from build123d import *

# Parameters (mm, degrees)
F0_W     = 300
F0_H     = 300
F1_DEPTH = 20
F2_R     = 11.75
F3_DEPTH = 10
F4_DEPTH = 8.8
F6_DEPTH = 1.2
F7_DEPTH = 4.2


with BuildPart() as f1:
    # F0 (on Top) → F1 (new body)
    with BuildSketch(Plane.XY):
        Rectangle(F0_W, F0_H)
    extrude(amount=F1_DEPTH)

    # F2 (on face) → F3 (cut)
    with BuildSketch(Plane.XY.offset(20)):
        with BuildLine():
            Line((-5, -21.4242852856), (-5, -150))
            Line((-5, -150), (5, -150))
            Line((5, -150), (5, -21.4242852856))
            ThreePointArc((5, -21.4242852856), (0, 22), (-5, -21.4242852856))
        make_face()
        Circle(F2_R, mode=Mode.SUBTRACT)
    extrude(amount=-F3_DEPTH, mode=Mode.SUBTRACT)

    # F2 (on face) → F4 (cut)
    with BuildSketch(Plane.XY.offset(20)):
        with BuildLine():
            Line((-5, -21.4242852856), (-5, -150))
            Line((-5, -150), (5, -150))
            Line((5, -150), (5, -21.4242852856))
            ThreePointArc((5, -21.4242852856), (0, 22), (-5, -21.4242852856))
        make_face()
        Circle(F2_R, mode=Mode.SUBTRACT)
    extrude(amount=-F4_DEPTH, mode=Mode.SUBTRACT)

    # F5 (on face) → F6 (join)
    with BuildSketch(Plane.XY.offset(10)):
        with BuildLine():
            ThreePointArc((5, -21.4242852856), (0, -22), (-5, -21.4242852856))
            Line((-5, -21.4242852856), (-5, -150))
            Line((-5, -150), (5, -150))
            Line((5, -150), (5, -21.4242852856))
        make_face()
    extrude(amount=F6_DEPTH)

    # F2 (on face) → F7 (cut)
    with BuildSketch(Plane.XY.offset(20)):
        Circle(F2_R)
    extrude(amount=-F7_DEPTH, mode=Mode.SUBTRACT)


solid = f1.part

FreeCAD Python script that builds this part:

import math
import FreeCAD as App
import Part
import Sketcher
Q = App.Units.Quantity

doc = App.newDocument("Part")
body = doc.addObject("PartDesign::Body", "Body")

# Sketch on XY plane
sketch1 = body.newObject("Sketcher::SketchObject", "Sketch")
sketch1.AttachmentSupport = (doc.getObject("XY_Plane"), [""])
sketch1.MapMode = "FlatFace"
sketch1.addGeometry([
    Part.LineSegment(App.Vector(-150, 150, 0), App.Vector(-150, -150, 0)),
    Part.LineSegment(App.Vector(-150, -150, 0), App.Vector(150, -150, 0)),
    Part.LineSegment(App.Vector(150, -150, 0), App.Vector(150, 150, 0)),
    Part.LineSegment(App.Vector(150, 150, 0), App.Vector(-150, 150, 0)),
], False)
sketch1.addConstraint([
    Sketcher.Constraint("Coincident", 0, 2, 1, 1),
    Sketcher.Constraint("Coincident", 1, 2, 2, 1),
    Sketcher.Constraint("Coincident", 2, 2, 3, 1),
    Sketcher.Constraint("Coincident", 3, 2, 0, 1),
    Sketcher.Constraint("Vertical", 0),
    Sketcher.Constraint("Horizontal", 1),
    Sketcher.Constraint("Vertical", 2),
    Sketcher.Constraint("Horizontal", 3),
    Sketcher.Constraint("Symmetric", 0, 2, 2, 2, -1, 1),
    Sketcher.Constraint("Equal", 3, 0),
    Sketcher.Constraint("DistanceX", 1, 1, 1, 2, Q("300 mm")),
])
pad1 = body.newObject("PartDesign::Pad", "Pad")
pad1.Profile = sketch1
pad1.Length = 20

# Sketch on XY plane
sketch2 = body.newObject("Sketcher::SketchObject", "Sketch001")
sketch2.AttachmentSupport = (doc.getObject("XY_Plane"), [""])
sketch2.MapMode = "FlatFace"
sketch2.AttachmentOffset = App.Placement(App.Vector(0, 0, 20), App.Rotation())
sketch2.addGeometry([
    Part.LineSegment(App.Vector(-5, -21.424285, 0), App.Vector(-5, -150, 0)),  # 0
    Part.LineSegment(App.Vector(-5, -150, 0), App.Vector(5, -150, 0)),  # 1
    Part.LineSegment(App.Vector(5, -150, 0), App.Vector(5, -21.424285, 0)),  # 2
    Part.ArcOfCircle(Part.Circle(App.Vector(0, 0, 0), App.Vector(0, 0, 1), 22), math.radians(-76.863441), math.radians(256.863441)),  # 3
    Part.Circle(App.Vector(0, 0, 0), App.Vector(0, 0, 1), 11.75),  # 4
], False)
sketch2.addConstraint([
    Sketcher.Constraint("Coincident", 0, 2, 1, 1),
    Sketcher.Constraint("Coincident", 1, 2, 2, 1),
    Sketcher.Constraint("Coincident", 2, 2, 3, 1),
    Sketcher.Constraint("Coincident", 3, 2, 0, 1),
    Sketcher.Constraint("Vertical", 0),
    Sketcher.Constraint("Horizontal", 1),
    Sketcher.Constraint("Vertical", 2),
    Sketcher.Constraint("Coincident", 3, 3, -1, 1),
    Sketcher.Constraint("Coincident", 4, 3, -1, 1),
    Sketcher.Constraint("Horizontal", 2, 2, 3, 2),
    Sketcher.Constraint("Radius", 3, Q("22 mm")),
    Sketcher.Constraint("Diameter", 4, Q("23.5 mm")),
    Sketcher.Constraint("DistanceX", 1, 1, 1, 2, Q("10 mm")),
    Sketcher.Constraint("DistanceY", 0, 2, -1, 1, Q("150 mm")),
])
pocket1 = body.newObject("PartDesign::Pocket", "Pocket")
pocket1.Profile = sketch2
pocket1.Length = 10

# Sketch on XY plane
sketch3 = body.newObject("Sketcher::SketchObject", "Sketch002")
sketch3.AttachmentSupport = (doc.getObject("XY_Plane"), [""])
sketch3.MapMode = "FlatFace"
sketch3.AttachmentOffset = App.Placement(App.Vector(0, 0, 20), App.Rotation())
sketch3.addGeometry([
    Part.LineSegment(App.Vector(-5, -21.424285, 0), App.Vector(-5, -150, 0)),  # 0
    Part.LineSegment(App.Vector(-5, -150, 0), App.Vector(5, -150, 0)),  # 1
    Part.LineSegment(App.Vector(5, -150, 0), App.Vector(5, -21.424285, 0)),  # 2
    Part.ArcOfCircle(Part.Circle(App.Vector(0, 0, 0), App.Vector(0, 0, 1), 22), math.radians(-76.863441), math.radians(256.863441)),  # 3
    Part.Circle(App.Vector(0, 0, 0), App.Vector(0, 0, 1), 11.75),  # 4
], False)
sketch3.addConstraint([
    Sketcher.Constraint("Coincident", 0, 2, 1, 1),
    Sketcher.Constraint("Coincident", 1, 2, 2, 1),
    Sketcher.Constraint("Coincident", 2, 2, 3, 1),
    Sketcher.Constraint("Coincident", 3, 2, 0, 1),
    Sketcher.Constraint("Vertical", 0),
    Sketcher.Constraint("Horizontal", 1),
    Sketcher.Constraint("Vertical", 2),
    Sketcher.Constraint("Coincident", 3, 3, -1, 1),
    Sketcher.Constraint("Coincident", 4, 3, -1, 1),
    Sketcher.Constraint("Horizontal", 2, 2, 3, 2),
    Sketcher.Constraint("Radius", 3, Q("22 mm")),
    Sketcher.Constraint("Diameter", 4, Q("23.5 mm")),
    Sketcher.Constraint("DistanceX", 1, 1, 1, 2, Q("10 mm")),
    Sketcher.Constraint("DistanceY", 0, 2, -1, 1, Q("150 mm")),
])
pocket2 = body.newObject("PartDesign::Pocket", "Pocket001")
pocket2.Profile = sketch3
pocket2.Length = 8.8

# Sketch on XY plane
sketch4 = body.newObject("Sketcher::SketchObject", "Sketch003")
sketch4.AttachmentSupport = (doc.getObject("XY_Plane"), [""])
sketch4.MapMode = "FlatFace"
sketch4.AttachmentOffset = App.Placement(App.Vector(0, 0, 10), App.Rotation())
sketch4.addGeometry([
    Part.ArcOfCircle(Part.Circle(App.Vector(0, 0, 0), App.Vector(0, 0, 1), 22), math.radians(-103.136559), math.radians(-76.863441)),
    Part.LineSegment(App.Vector(-5, -21.424285, 0), App.Vector(-5, -150, 0)),
    Part.LineSegment(App.Vector(-5, -150, 0), App.Vector(5, -150, 0)),
    Part.LineSegment(App.Vector(5, -150, 0), App.Vector(5, -21.424285, 0)),
], False)
sketch4.addConstraint([
    Sketcher.Constraint("Coincident", 0, 1, 1, 1),
    Sketcher.Constraint("Coincident", 1, 2, 2, 1),
    Sketcher.Constraint("Coincident", 2, 2, 3, 1),
    Sketcher.Constraint("Coincident", 3, 2, 0, 2),
    Sketcher.Constraint("Vertical", 1),
    Sketcher.Constraint("Horizontal", 2),
    Sketcher.Constraint("Vertical", 3),
    Sketcher.Constraint("Coincident", 0, 3, -1, 1),
    Sketcher.Constraint("Horizontal", 0, 1, 3, 2),
    Sketcher.Constraint("Radius", 0, Q("22 mm")),
    Sketcher.Constraint("DistanceX", 2, 1, 2, 2, Q("10 mm")),
    Sketcher.Constraint("DistanceY", 1, 2, -1, 1, Q("150 mm")),
])
pad2 = body.newObject("PartDesign::Pad", "Pad001")
pad2.Profile = sketch4
pad2.Length = 1.2

# Sketch on XY plane
sketch5 = body.newObject("Sketcher::SketchObject", "Sketch004")
sketch5.AttachmentSupport = (doc.getObject("XY_Plane"), [""])
sketch5.MapMode = "FlatFace"
sketch5.AttachmentOffset = App.Placement(App.Vector(0, 0, 20), App.Rotation())
sketch5.addGeometry(Part.Circle(App.Vector(0, 0, 0), App.Vector(0, 0, 1), 11.75), False)
sketch5.addConstraint([
    Sketcher.Constraint("Coincident", 0, 3, -1, 1),
    Sketcher.Constraint("Diameter", 0, Q("23.5 mm")),
])
pocket3 = body.newObject("PartDesign::Pocket", "Pocket002")
pocket3.Profile = sketch5
pocket3.Length = 4.2

doc.recompute()
